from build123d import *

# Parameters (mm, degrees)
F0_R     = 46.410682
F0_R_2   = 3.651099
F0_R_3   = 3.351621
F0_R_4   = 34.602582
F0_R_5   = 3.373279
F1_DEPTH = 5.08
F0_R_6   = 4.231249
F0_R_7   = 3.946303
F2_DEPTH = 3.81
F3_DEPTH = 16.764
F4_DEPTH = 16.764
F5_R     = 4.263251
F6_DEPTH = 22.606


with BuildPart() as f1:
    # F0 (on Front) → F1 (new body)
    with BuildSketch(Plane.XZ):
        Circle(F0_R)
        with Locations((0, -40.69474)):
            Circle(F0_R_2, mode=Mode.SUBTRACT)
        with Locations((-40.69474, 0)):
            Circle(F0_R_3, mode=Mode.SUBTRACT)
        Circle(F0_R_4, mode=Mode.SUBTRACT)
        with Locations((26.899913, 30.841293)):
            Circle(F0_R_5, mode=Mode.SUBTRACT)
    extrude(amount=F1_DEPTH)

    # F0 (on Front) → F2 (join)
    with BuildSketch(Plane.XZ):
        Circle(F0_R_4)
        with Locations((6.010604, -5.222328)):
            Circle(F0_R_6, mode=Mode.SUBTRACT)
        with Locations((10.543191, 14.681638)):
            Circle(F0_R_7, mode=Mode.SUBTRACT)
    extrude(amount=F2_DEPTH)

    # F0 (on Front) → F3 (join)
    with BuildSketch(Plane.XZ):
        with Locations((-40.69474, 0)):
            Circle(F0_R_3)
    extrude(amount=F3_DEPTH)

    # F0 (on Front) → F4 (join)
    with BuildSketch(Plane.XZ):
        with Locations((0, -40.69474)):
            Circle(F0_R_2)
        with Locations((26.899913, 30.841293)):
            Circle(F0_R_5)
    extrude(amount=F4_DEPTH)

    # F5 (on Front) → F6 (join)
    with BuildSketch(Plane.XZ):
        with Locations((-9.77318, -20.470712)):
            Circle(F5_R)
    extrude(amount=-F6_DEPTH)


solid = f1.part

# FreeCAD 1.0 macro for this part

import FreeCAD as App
import Part
import Sketcher
Q = App.Units.Quantity

doc = App.newDocument("Part")
body = doc.addObject("PartDesign::Body", "Body")

sketch1 = body.newObject("Sketcher::SketchObject", "Sketch")
sketch1.AttachmentSupport = (doc.getObject("XZ_Plane"), [""])
sketch1.MapMode = "FlatFace"
sketch1.addGeometry(Part.Circle(App.Vector(0, 0, 0), App.Vector(0, 0, 1), 46.4), False)
sketch1.addGeometry(Part.Circle(App.Vector(0, -40.7, 0), App.Vector(0, 0, 1), 3.7), False)
sketch1.addGeometry(Part.Circle(App.Vector(-40.7, 0, 0), App.Vector(0, 0, 1), 3.4), False)
sketch1.addGeometry(Part.Circle(App.Vector(0, 0, 0), App.Vector(0, 0, 1), 34.6), False)
sketch1.addGeometry(Part.Circle(App.Vector(26.9, 30.8, 0), App.Vector(0, 0, 1), 3.4), False)
sketch1.addConstraint(Sketcher.Constraint("Coincident", 0, 3, -1, 1))
sketch1.addConstraint(Sketcher.Constraint("Coincident", 3, 3, -1, 1))
sketch1.addConstraint(Sketcher.Constraint("PointOnObject", 1, 3, -2))
sketch1.addConstraint(Sketcher.Constraint("PointOnObject", 2, 3, -1))
sketch1.addConstraint(Sketcher.Constraint("Diameter", 4, 6.746558))
sketch1.addConstraint(Sketcher.Constraint("Diameter", 0, 92.821364))
sketch1.addConstraint(Sketcher.Constraint("Diameter", 1, 7.302198))
sketch1.addConstraint(Sketcher.Constraint("Diameter", 2, 6.703242))
sketch1.addConstraint(Sketcher.Constraint("Diameter", 3, 69.205164))
sketch1.addConstraint(Sketcher.Constraint("DistanceY", 1, 3, -1, 1, 40.69474))
sketch1.addConstraint(Sketcher.Constraint("DistanceX", 2, 3, -1, 1, 40.69474))
sketch1.addConstraint(Sketcher.Constraint("DistanceX", -1, 1, 4, 3, 26.899913))
sketch1.addConstraint(Sketcher.Constraint("DistanceY", -1, 1, 4, 3, 30.841293))
pad1 = body.newObject("PartDesign::Pad", "Pad")
pad1.Profile = sketch1
pad1.Length = Q("0.2 in")

sketch2 = body.newObject("Sketcher::SketchObject", "Sketch001")
sketch2.AttachmentSupport = (doc.getObject("XZ_Plane"), [""])
sketch2.MapMode = "FlatFace"
sketch2.addGeometry(Part.Circle(App.Vector(0, 0, 0), App.Vector(0, 0, 1), 34.6), False)
sketch2.addGeometry(Part.Circle(App.Vector(6, -5.2, 0), App.Vector(0, 0, 1), 4.2), False)
sketch2.addGeometry(Part.Circle(App.Vector(10.5, 14.7, 0), App.Vector(0, 0, 1), 3.9), False)
sketch2.addConstraint(Sketcher.Constraint("Coincident", 0, 3, -1, 1))
sketch2.addConstraint(Sketcher.Constraint("Diameter", 0, 69.205164))
sketch2.addConstraint(Sketcher.Constraint("Diameter", 1, 8.462498))
sketch2.addConstraint(Sketcher.Constraint("Diameter", 2, 7.892606))
sketch2.addConstraint(Sketcher.Constraint("DistanceX", -1, 1, 2, 3, 10.543191))
sketch2.addConstraint(Sketcher.Constraint("DistanceX", -1, 1, 1, 3, 6.010604))
sketch2.addConstraint(Sketcher.Constraint("DistanceY", 1, 3, -1, 1, 5.222328))
sketch2.addConstraint(Sketcher.Constraint("DistanceY", -1, 1, 2, 3, 14.681638))
pad2 = body.newObject("PartDesign::Pad", "Pad001")
pad2.Profile = sketch2
pad2.Length = Q("0.15 in")

sketch3 = body.newObject("Sketcher::SketchObject", "Sketch002")
sketch3.AttachmentSupport = (doc.getObject("XZ_Plane"), [""])
sketch3.MapMode = "FlatFace"
sketch3.addGeometry(Part.Circle(App.Vector(-40.7, 0, 0), App.Vector(0, 0, 1), 3.4), False)
sketch3.addConstraint(Sketcher.Constraint("PointOnObject", 0, 3, -1))
sketch3.addConstraint(Sketcher.Constraint("Diameter", 0, 6.703242))
sketch3.addConstraint(Sketcher.Constraint("DistanceX", 0, 3, -1, 1, 40.69474))
pad3 = body.newObject("PartDesign::Pad", "Pad002")
pad3.Profile = sketch3
pad3.Length = Q("0.66 in")

sketch4 = body.newObject("Sketcher::SketchObject", "Sketch003")
sketch4.AttachmentSupport = (doc.getObject("XZ_Plane"), [""])
sketch4.MapMode = "FlatFace"
sketch4.addGeometry(Part.Circle(App.Vector(0, -40.7, 0), App.Vector(0, 0, 1), 3.7), False)
sketch4.addGeometry(Part.Circle(App.Vector(26.9, 30.8, 0), App.Vector(0, 0, 1), 3.4), False)
sketch4.addConstraint(Sketcher.Constraint("PointOnObject", 0, 3, -2))
sketch4.addConstraint(Sketcher.Constraint("Diameter", 1, 6.746558))
sketch4.addConstraint(Sketcher.Constraint("Diameter", 0, 7.302198))
sketch4.addConstraint(Sketcher.Constraint("DistanceY", 0, 3, -1, 1, 40.69474))
sketch4.addConstraint(Sketcher.Constraint("DistanceX", -1, 1, 1, 3, 26.899913))
sketch4.addConstraint(Sketcher.Constraint("DistanceY", -1, 1, 1, 3, 30.841293))
pad4 = body.newObject("PartDesign::Pad", "Pad003")
pad4.Profile = sketch4
pad4.Length = Q("0.66 in")

sketch5 = body.newObject("Sketcher::SketchObject", "Sketch004")
sketch5.AttachmentSupport = (doc.getObject("XZ_Plane"), [""])
sketch5.MapMode = "FlatFace"
sketch5.addGeometry(Part.Circle(App.Vector(-9.8, -20.5, 0), App.Vector(0, 0, 1), 4.3), False)
sketch5.addConstraint(Sketcher.Constraint("Diameter", 0, 8.526502))
sketch5.addConstraint(Sketcher.Constraint("DistanceX", 0, 3, -1, 1, 9.77318))
sketch5.addConstraint(Sketcher.Constraint("DistanceY", 0, 3, -1, 1, 20.470712))
pad5 = body.newObject("PartDesign::Pad", "Pad004")
pad5.Profile = sketch5
pad5.Length = Q("0.89 in")
pad5.Reversed = True

doc.recompute()
